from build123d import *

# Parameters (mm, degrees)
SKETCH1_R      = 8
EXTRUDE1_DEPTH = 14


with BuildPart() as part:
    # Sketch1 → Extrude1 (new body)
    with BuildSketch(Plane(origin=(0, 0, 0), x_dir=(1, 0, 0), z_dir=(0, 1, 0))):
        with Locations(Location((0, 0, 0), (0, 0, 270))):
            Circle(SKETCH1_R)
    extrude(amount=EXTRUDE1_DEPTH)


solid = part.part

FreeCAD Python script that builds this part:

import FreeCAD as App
import Part
import Sketcher

doc = App.newDocument("Part")
params = doc.addObject("Spreadsheet::Sheet", "Params")
for row, (alias, value) in enumerate([
    ("sketch1_diameter", "16 mm"),
    ("pad1_length", "14 mm"),
], start=1):
    params.set(f"A{row}", alias)
    params.set(f"B{row}", "=" + value)
    params.setAlias(f"B{row}", alias)

body = doc.addObject("PartDesign::Body", "Body")

# Sketch on XZ plane
sketch1 = body.newObject("Sketcher::SketchObject", "Sketch")
sketch1.AttachmentSupport = (doc.getObject("XZ_Plane"), [""])
sketch1.MapMode = "FlatFace"
sketch1.addGeometry(Part.Circle(App.Vector(0, 0, 0), App.Vector(0, 0, 1), 8), False)
sketch1.addConstraint(Sketcher.Constraint("Coincident", 0, 3, -1, 1))
sketch1.addConstraint(Sketcher.Constraint("Diameter", 0, 16.0))
sketch1.setExpression("Constraints[1]", "Params.sketch1_diameter")
pad1 = body.newObject("PartDesign::Pad", "Pad")
pad1.Profile = sketch1
pad1.setExpression("Length", "Params.pad1_length")
pad1.Reversed = True

doc.recompute()
